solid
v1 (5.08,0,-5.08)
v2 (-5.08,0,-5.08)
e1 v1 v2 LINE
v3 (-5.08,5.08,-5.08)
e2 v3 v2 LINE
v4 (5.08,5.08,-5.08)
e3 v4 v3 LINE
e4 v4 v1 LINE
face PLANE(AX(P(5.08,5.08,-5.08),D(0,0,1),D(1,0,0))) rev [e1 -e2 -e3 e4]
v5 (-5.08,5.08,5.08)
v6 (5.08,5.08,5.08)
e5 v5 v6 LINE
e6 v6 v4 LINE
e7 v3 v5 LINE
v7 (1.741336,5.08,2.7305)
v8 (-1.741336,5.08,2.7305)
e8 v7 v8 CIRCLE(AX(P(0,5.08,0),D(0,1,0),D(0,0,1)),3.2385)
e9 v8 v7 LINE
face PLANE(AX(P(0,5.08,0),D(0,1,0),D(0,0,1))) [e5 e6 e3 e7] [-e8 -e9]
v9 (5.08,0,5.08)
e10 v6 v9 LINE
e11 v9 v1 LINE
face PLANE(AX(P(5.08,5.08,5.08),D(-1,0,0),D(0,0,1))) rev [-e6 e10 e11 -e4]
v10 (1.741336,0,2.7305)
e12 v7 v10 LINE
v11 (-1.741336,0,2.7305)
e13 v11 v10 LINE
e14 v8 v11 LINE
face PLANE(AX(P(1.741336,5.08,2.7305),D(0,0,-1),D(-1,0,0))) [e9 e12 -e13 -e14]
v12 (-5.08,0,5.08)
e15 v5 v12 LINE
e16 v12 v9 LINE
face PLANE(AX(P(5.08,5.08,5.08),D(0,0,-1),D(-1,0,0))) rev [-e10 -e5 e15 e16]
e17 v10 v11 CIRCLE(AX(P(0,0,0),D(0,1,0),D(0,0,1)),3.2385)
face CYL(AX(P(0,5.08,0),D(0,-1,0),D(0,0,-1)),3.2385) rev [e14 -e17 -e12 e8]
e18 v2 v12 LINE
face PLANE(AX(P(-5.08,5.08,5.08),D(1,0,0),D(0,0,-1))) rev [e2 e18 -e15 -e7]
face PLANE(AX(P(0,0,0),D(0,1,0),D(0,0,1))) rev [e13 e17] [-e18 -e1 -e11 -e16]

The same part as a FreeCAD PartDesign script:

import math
import FreeCAD as App
import Part
import Sketcher
from FreeCAD import Vector
Q = App.Units.Quantity

doc = App.newDocument("Part")
body = doc.addObject("PartDesign::Body", "Body")

# Sketch on XZ plane
sketch1 = body.newObject("Sketcher::SketchObject", "Sketch")
sketch1.AttachmentSupport = (doc.getObject("XZ_Plane"), [""])
sketch1.MapMode = "FlatFace"
sketch1.addGeometry([
    Part.LineSegment(Vector(-5.1, -5.1, 0), Vector(-5.1, 5.1, 0)),  # 0
    Part.LineSegment(Vector(-5.1, 5.1, 0), Vector(5.1, 5.1, 0)),  # 1
    Part.LineSegment(Vector(5.1, 5.1, 0), Vector(5.1, -5.1, 0)),  # 2
    Part.LineSegment(Vector(5.1, -5.1, 0), Vector(-5.1, -5.1, 0)),  # 3
    Part.ArcOfCircle(Part.Circle(Vector(0, 0, 0), Vector(0, 0, 1), 3.2), math.radians(123), math.radians(417)),  # 4
    Part.LineSegment(Vector(1.7, 2.7, 0), Vector(-1.7, 2.7, 0)),  # 5
], False)
sketch1.addConstraint([
    Sketcher.Constraint("Coincident", 0, 2, 1, 1),
    Sketcher.Constraint("Coincident", 1, 2, 2, 1),
    Sketcher.Constraint("Coincident", 2, 2, 3, 1),
    Sketcher.Constraint("Coincident", 3, 2, 0, 1),
    Sketcher.Constraint("Coincident", 4, 1, 5, 2),
    Sketcher.Constraint("Coincident", 5, 1, 4, 2),
    Sketcher.Constraint("Vertical", 0),
    Sketcher.Constraint("Horizontal", 1),
    Sketcher.Constraint("Vertical", 2),
    Sketcher.Constraint("Horizontal", 3),
    Sketcher.Constraint("Horizontal", 5),
    Sketcher.Constraint("Coincident", 4, 3, -1, 1),
    Sketcher.Constraint("Symmetric", 0, 2, 2, 2, -1, 1),
    Sketcher.Constraint("Equal", 3, 0),
    Sketcher.Constraint("DistanceX", 1, 1, 1, 2, Q("0.4 in")),
    Sketcher.Constraint("Radius", 4, Q("0.1275 in")),
    Sketcher.Constraint("DistanceY", -1, 1, 4, 1, Q("0.1075 in")),
])
pad1 = body.newObject("PartDesign::Pad", "Pad")
pad1.Profile = sketch1
pad1.Length = Q("0.2 in")
pad1.Reversed = True

doc.recompute()
